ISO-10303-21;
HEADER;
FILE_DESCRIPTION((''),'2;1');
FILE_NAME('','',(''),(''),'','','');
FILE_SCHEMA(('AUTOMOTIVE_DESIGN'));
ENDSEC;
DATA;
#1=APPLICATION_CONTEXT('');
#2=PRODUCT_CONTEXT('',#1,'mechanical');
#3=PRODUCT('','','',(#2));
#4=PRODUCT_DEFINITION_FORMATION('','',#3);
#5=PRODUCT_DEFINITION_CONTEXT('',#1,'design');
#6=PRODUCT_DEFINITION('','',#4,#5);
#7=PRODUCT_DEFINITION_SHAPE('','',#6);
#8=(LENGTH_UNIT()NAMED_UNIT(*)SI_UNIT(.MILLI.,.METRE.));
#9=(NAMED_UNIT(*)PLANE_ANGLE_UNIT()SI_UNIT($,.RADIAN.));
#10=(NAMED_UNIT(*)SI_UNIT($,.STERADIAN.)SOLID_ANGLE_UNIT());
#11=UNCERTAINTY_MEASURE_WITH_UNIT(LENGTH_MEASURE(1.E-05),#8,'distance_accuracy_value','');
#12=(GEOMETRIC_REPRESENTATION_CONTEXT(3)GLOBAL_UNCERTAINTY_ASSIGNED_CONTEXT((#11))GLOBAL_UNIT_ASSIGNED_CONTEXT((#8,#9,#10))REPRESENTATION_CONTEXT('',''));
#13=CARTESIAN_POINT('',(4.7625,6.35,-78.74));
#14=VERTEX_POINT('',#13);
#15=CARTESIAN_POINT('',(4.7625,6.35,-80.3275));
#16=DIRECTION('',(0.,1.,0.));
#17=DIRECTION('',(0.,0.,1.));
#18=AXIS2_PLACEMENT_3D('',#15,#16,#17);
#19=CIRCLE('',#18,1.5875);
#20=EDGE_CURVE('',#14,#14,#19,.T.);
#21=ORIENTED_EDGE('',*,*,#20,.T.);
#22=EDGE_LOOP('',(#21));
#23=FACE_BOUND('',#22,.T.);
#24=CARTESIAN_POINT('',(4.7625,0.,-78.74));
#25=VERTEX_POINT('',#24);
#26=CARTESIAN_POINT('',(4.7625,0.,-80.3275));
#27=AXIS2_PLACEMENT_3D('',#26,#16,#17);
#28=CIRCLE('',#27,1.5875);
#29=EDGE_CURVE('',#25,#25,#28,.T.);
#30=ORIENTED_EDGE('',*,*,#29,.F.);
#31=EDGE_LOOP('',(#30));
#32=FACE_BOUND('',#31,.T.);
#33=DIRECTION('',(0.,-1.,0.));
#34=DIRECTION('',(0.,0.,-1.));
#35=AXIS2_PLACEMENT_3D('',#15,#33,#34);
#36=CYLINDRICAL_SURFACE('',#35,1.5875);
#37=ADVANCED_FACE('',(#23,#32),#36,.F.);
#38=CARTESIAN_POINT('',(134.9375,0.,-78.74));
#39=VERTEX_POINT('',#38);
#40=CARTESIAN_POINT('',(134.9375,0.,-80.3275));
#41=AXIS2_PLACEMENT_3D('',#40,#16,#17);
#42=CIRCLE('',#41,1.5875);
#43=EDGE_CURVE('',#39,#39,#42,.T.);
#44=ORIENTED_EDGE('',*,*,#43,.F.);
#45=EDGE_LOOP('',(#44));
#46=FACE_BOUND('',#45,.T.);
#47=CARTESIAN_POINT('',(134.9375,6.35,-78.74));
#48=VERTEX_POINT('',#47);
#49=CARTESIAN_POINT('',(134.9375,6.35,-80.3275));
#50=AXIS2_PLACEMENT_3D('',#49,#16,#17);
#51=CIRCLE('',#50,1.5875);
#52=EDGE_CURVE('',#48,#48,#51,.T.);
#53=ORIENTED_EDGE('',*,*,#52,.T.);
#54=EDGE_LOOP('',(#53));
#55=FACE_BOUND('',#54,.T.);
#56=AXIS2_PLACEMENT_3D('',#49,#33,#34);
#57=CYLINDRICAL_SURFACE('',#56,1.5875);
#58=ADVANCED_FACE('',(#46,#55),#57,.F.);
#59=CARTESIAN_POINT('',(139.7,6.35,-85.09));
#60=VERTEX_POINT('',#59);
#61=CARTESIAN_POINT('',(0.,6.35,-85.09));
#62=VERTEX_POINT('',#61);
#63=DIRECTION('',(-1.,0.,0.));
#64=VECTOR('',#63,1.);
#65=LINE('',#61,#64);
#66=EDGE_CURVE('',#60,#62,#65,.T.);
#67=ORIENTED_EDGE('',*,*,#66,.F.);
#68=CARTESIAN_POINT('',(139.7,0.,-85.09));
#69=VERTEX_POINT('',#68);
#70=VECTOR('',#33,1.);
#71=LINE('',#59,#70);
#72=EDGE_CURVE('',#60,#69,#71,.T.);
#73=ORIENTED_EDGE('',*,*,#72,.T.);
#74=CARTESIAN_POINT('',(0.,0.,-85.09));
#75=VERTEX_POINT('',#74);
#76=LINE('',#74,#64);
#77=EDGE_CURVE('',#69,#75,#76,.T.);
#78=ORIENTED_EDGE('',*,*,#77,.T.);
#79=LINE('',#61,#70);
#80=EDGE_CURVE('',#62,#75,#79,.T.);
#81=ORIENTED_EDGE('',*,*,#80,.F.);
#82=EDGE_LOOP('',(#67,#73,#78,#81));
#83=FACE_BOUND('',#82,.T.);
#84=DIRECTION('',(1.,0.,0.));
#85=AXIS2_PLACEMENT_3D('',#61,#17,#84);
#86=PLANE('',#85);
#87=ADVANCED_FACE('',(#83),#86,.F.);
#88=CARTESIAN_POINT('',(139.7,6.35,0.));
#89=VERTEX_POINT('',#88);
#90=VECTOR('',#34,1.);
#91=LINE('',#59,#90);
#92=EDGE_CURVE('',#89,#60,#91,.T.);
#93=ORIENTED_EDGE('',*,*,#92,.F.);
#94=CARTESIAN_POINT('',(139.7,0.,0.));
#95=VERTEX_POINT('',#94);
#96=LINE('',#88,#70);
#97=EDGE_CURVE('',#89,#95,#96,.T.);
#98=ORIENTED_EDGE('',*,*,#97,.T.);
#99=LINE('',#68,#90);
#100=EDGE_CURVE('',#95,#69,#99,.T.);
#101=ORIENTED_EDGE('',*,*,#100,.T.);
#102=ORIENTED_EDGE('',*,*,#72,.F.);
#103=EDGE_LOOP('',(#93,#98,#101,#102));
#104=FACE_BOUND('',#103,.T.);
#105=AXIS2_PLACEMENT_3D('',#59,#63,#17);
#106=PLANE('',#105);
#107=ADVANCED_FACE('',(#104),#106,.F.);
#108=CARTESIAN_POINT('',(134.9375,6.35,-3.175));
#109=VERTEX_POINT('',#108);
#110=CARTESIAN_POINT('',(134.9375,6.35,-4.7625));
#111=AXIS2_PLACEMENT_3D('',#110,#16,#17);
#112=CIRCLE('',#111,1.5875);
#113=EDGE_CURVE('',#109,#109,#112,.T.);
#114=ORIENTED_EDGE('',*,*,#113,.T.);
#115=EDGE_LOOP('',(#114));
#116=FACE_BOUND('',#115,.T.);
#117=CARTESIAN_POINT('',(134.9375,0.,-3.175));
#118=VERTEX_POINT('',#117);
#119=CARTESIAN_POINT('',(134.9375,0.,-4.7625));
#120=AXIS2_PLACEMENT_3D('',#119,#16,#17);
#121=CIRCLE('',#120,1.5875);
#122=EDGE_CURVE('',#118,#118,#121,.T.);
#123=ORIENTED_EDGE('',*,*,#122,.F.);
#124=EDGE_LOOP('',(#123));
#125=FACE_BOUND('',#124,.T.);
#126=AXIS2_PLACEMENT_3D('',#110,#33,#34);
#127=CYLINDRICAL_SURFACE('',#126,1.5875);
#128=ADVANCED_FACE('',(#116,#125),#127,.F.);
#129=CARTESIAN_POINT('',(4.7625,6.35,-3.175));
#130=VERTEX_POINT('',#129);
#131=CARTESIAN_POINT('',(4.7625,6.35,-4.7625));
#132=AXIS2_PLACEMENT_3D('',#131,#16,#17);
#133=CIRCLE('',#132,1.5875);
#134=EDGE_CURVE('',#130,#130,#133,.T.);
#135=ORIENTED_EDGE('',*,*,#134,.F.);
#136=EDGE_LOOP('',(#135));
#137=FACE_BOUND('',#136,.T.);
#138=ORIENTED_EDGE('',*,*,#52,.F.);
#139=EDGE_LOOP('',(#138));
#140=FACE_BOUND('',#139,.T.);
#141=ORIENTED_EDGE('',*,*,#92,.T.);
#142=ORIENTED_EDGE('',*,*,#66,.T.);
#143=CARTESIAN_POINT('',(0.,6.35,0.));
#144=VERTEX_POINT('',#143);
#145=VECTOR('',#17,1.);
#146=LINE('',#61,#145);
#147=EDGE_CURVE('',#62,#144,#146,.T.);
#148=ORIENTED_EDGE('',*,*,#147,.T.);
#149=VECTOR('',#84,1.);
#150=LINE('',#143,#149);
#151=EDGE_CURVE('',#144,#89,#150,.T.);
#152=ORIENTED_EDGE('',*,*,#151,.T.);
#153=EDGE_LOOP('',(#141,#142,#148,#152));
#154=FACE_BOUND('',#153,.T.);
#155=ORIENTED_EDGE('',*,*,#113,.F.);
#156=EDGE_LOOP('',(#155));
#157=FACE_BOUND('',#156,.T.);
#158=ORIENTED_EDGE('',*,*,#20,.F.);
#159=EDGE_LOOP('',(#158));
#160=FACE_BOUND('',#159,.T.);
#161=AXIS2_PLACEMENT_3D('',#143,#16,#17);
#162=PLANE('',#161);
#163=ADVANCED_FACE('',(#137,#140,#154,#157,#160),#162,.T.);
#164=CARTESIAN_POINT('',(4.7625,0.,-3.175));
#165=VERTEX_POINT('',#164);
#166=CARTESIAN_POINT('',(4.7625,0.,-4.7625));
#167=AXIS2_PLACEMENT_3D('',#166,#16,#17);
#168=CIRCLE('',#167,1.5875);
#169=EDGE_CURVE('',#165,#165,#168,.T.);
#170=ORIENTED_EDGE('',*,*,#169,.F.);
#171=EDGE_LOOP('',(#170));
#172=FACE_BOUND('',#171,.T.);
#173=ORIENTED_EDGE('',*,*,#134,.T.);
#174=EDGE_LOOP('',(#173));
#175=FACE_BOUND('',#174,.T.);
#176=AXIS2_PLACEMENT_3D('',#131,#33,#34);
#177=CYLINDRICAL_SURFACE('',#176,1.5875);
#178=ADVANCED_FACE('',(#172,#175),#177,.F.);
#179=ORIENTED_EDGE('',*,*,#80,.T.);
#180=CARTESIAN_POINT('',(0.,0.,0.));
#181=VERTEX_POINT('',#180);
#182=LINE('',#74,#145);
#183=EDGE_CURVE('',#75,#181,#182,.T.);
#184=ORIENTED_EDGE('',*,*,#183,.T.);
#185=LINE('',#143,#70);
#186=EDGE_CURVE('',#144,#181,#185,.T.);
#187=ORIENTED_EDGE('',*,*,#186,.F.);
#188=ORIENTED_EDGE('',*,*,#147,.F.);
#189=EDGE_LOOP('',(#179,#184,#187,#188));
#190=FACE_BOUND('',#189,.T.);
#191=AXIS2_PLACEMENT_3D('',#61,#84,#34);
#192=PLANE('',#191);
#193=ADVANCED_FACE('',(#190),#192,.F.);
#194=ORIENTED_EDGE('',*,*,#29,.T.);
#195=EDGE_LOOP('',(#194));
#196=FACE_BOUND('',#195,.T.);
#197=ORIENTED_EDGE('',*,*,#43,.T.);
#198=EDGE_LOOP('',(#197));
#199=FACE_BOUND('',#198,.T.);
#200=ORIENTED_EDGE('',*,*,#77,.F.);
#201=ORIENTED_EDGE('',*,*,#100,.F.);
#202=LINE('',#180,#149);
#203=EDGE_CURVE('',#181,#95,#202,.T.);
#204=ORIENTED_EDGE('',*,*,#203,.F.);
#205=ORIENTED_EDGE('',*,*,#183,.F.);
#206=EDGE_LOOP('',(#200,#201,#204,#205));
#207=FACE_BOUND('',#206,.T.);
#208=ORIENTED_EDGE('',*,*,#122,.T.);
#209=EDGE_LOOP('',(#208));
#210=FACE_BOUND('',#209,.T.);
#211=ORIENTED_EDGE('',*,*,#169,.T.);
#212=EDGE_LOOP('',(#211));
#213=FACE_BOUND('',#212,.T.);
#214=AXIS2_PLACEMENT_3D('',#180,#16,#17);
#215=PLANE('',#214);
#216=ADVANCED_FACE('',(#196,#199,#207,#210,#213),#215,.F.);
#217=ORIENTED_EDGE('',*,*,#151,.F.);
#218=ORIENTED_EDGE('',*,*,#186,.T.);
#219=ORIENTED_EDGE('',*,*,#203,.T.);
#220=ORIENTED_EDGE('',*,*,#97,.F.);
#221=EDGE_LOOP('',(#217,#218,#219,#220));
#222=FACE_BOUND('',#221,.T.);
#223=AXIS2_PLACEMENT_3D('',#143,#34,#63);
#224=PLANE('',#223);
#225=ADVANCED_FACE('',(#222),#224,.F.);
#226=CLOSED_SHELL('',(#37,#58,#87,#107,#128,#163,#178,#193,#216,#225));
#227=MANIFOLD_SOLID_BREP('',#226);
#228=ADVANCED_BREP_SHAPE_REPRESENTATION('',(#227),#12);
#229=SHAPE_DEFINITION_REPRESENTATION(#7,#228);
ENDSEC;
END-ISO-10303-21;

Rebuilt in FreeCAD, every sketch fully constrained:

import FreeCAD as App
import Part
import Sketcher

V = App.Vector
Q = App.Units.Quantity


def add_polygon(sketch, points):
    """Adds a closed chain of lines whose ends are joined by coincident constraints."""
    first, n = sketch.GeometryCount, len(points)
    for a, b in zip(points, points[1:] + points[:1]):
        sketch.addGeometry(Part.LineSegment(App.Vector(*a, 0), App.Vector(*b, 0)), False)
    for i in range(n):
        sketch.addConstraint(Sketcher.Constraint("Coincident", first + i, 2, first + (i + 1) % n, 1))

doc = App.newDocument("Part")
body = doc.addObject("PartDesign::Body", "Body")

# Sketch on XZ plane
sketch1 = body.newObject("Sketcher::SketchObject", "Sketch")
sketch1.AttachmentSupport = (doc.getObject("XZ_Plane"), [""])
sketch1.MapMode = "FlatFace"
add_polygon(sketch1, [(0, -85.1), (0, 0), (139.7, 0), (139.7, -85.1)])  # lines 0-3
sketch1.addGeometry(Part.Circle(V(4.8, -4.8, 0), V(0, 0, 1), 1.6), False)  # 4
sketch1.addGeometry(Part.Circle(V(134.9, -4.8, 0), V(0, 0, 1), 1.6), False)  # 5
sketch1.addGeometry(Part.Circle(V(4.8, -80.3, 0), V(0, 0, 1), 1.6), False)  # 6
sketch1.addGeometry(Part.Circle(V(134.9, -80.3, 0), V(0, 0, 1), 1.6), False)  # 7
sketch1.addConstraint([
    Sketcher.Constraint("Vertical", 0),
    Sketcher.Constraint("Horizontal", 1),
    Sketcher.Constraint("Vertical", 2),
    Sketcher.Constraint("Horizontal", 3),
    Sketcher.Constraint("Coincident", 0, 2, -1, 1),
    Sketcher.Constraint("Equal", 4, 5),
    Sketcher.Constraint("Equal", 5, 6),
    Sketcher.Constraint("Equal", 6, 7),
    Sketcher.Constraint("Horizontal", 4, 3, 5, 3),
    Sketcher.Constraint("Horizontal", 6, 3, 7, 3),
    Sketcher.Constraint("Vertical", 4, 3, 6, 3),
    Sketcher.Constraint("Vertical", 5, 3, 7, 3),
    Sketcher.Constraint("Diameter", 4, Q("0.125 in")),
    Sketcher.Constraint("DistanceX", 1, 1, 1, 2, Q("5.5 in")),
    Sketcher.Constraint("DistanceY", 0, 1, 0, 2, Q("3.35 in")),
    Sketcher.Constraint("DistanceX", -1, 1, 4, 3, Q("0.1875 in")),
    Sketcher.Constraint("DistanceY", 4, 3, -1, 1, Q("0.1875 in")),
    Sketcher.Constraint("DistanceX", -1, 1, 5, 3, Q("5.3125 in")),
    Sketcher.Constraint("DistanceY", 6, 3, 4, 3, Q("2.975 in")),
])
pad1 = body.newObject("PartDesign::Pad", "Pad")
pad1.Profile = sketch1
pad1.Length = Q("0.25 in")
pad1.Reversed = True

doc.recompute()
